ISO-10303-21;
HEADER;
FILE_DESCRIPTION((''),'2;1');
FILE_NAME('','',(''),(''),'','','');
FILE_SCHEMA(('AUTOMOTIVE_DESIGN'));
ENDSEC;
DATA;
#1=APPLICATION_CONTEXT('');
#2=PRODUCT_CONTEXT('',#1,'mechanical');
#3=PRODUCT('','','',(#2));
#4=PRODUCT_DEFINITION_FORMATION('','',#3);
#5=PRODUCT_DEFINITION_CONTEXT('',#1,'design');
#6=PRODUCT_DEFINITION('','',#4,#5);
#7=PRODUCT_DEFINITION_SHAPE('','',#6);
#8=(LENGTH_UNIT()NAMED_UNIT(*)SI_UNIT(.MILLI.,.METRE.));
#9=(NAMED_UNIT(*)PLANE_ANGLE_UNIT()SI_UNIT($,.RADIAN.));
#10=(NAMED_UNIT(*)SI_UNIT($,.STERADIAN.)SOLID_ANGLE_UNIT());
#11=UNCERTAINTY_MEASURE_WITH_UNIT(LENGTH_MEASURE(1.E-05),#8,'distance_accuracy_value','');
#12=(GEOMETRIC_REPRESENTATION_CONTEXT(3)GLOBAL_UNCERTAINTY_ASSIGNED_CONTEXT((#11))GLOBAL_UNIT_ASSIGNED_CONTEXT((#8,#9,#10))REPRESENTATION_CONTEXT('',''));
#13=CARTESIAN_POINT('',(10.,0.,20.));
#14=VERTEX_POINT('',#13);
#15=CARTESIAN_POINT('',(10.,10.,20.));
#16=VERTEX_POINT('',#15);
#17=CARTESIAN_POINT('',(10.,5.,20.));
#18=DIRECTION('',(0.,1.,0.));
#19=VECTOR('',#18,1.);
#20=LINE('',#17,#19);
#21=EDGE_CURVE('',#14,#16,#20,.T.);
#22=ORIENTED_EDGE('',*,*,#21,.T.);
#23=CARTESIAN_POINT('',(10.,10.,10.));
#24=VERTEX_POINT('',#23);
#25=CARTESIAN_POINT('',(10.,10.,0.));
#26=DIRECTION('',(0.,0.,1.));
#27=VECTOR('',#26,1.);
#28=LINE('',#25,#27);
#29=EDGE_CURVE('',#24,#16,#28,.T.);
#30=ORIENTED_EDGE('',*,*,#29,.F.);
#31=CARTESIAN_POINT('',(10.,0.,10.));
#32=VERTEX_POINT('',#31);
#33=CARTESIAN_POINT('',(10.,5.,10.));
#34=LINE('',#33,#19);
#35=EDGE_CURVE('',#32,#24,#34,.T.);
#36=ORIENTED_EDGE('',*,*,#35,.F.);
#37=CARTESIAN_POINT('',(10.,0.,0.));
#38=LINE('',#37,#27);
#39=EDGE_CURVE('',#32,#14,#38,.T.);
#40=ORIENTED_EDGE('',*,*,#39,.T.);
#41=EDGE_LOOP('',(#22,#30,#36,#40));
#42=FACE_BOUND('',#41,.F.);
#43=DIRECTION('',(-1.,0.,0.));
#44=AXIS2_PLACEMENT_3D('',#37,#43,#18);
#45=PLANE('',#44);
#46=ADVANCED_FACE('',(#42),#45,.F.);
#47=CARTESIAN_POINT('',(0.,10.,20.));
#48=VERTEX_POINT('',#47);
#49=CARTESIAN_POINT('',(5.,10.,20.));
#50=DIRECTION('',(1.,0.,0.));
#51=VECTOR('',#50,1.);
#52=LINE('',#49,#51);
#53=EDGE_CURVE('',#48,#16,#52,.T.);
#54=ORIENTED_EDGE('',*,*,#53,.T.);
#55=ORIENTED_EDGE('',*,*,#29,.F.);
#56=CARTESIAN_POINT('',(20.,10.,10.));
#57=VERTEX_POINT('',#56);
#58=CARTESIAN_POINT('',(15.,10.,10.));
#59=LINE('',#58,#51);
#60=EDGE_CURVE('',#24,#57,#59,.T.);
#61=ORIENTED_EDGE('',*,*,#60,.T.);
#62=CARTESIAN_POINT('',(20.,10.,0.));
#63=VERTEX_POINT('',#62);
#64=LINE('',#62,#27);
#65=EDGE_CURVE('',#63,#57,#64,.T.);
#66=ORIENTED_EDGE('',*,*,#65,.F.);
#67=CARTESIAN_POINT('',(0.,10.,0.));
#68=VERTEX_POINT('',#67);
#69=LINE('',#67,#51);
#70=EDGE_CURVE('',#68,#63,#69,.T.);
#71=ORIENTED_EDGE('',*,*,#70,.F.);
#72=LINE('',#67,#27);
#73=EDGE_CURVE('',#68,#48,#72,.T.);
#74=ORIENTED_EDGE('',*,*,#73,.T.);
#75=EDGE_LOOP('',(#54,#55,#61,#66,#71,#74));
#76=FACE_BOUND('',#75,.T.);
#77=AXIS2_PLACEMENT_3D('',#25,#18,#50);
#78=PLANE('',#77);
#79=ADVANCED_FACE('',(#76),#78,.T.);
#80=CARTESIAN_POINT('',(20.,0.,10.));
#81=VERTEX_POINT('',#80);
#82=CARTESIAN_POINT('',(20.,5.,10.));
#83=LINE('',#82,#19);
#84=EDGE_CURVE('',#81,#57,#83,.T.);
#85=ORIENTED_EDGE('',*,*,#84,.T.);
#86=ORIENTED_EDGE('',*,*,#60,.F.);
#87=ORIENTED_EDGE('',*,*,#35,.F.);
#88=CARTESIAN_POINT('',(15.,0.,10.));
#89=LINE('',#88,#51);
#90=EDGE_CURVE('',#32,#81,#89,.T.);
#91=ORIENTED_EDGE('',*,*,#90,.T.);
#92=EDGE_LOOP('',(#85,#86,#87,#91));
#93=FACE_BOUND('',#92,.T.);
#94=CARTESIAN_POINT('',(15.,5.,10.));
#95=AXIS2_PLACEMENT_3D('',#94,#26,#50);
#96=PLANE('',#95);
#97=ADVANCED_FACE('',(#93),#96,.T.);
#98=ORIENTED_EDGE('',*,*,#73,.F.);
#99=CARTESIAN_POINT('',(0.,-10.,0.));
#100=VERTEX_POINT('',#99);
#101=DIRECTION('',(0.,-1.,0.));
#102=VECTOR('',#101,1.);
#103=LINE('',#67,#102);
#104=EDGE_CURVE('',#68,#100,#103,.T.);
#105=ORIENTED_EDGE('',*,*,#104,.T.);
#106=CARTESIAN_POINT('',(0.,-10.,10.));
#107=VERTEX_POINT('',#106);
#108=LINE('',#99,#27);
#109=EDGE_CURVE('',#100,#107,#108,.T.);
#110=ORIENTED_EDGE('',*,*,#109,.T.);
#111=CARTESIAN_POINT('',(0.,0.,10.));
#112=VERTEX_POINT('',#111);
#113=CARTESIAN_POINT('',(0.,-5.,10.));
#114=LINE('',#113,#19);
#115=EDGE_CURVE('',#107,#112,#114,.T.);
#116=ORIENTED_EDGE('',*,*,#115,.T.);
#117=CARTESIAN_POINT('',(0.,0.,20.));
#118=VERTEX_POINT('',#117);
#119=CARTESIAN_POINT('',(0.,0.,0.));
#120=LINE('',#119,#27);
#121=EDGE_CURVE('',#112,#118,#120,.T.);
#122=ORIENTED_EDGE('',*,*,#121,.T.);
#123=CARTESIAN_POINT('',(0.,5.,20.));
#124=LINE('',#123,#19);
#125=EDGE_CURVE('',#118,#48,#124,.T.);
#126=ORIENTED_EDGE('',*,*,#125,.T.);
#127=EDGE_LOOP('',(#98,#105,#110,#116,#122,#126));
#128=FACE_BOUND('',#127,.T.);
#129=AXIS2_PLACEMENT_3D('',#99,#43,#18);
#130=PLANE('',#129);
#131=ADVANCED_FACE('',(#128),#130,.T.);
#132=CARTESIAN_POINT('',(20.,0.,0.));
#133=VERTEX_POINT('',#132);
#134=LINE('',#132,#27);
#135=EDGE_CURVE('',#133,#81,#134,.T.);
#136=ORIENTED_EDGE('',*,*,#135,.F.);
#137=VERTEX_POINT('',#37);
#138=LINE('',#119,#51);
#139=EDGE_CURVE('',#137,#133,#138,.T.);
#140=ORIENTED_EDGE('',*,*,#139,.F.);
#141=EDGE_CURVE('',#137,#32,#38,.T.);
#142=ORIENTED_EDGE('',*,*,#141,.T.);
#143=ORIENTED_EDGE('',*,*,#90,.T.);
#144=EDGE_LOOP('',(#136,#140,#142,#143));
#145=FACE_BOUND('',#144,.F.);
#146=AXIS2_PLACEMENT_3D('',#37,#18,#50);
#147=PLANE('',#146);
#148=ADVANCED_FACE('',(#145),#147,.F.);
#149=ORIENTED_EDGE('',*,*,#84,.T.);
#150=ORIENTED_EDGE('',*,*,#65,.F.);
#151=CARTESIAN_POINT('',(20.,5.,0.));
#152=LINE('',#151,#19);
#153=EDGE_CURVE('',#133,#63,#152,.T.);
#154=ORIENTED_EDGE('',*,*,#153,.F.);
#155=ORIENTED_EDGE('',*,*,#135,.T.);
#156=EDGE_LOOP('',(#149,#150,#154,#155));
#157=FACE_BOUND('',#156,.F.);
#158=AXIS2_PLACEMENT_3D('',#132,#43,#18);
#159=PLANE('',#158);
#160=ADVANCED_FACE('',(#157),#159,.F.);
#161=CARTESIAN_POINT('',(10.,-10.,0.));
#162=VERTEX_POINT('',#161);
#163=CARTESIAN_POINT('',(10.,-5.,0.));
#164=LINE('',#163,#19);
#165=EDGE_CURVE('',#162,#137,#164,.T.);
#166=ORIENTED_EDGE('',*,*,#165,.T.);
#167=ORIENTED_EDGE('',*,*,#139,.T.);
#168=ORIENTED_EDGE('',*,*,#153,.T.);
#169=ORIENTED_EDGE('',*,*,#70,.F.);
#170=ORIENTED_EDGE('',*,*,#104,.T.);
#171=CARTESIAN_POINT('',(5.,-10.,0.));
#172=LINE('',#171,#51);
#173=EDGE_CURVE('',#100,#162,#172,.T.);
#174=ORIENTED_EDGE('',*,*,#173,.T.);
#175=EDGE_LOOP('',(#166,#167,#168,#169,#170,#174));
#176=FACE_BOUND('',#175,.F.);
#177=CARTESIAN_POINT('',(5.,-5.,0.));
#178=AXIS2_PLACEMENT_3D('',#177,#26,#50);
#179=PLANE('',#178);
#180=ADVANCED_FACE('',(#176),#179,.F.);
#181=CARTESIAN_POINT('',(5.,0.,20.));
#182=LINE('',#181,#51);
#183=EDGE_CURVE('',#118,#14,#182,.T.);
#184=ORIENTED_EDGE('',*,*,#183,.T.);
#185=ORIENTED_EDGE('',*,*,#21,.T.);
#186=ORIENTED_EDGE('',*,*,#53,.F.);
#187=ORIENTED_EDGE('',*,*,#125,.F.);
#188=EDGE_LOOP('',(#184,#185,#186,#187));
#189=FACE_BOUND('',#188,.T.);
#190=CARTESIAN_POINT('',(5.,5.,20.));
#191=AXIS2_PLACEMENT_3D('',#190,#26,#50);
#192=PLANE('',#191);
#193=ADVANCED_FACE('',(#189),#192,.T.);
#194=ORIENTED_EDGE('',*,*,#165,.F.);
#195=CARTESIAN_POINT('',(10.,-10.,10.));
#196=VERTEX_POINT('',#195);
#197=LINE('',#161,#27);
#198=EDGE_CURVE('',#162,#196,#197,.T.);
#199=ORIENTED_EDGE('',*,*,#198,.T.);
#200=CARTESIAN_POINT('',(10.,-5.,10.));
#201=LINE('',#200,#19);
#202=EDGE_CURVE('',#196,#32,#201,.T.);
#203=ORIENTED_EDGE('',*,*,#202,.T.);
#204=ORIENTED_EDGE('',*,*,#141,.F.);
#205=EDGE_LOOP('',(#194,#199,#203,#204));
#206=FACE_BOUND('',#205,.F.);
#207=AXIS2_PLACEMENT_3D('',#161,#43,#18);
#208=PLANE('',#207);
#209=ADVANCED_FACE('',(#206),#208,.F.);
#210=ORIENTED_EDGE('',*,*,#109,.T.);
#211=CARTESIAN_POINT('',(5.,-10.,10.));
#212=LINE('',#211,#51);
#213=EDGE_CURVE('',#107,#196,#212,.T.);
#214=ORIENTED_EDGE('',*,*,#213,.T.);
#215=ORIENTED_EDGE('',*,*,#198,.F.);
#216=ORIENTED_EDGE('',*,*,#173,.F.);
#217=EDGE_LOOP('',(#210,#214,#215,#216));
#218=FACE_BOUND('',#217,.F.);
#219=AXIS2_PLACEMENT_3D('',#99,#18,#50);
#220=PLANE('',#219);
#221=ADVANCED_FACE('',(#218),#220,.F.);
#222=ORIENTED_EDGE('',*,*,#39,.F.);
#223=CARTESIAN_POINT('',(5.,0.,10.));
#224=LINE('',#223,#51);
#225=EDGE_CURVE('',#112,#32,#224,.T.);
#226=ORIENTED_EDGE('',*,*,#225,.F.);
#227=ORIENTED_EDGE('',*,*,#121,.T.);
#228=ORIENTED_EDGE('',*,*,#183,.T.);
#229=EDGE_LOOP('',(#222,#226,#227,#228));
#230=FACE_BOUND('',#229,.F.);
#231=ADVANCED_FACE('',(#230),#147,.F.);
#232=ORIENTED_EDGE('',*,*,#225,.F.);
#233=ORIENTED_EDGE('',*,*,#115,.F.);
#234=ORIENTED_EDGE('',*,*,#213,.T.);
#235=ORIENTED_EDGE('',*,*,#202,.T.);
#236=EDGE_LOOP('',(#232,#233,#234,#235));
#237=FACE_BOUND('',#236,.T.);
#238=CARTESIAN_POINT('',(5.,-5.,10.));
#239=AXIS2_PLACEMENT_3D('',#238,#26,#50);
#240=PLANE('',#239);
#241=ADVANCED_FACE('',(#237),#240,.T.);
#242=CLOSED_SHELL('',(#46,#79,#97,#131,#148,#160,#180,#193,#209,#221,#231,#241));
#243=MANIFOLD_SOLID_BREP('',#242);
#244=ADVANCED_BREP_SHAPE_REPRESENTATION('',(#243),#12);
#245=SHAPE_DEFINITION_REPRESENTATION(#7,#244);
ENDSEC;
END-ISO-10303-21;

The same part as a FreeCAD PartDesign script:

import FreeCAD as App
import Part
import Sketcher
Q = App.Units.Quantity


def add_polygon(sketch, points):
    """Adds a closed chain of lines whose ends are joined by coincident constraints."""
    first, n = sketch.GeometryCount, len(points)
    for a, b in zip(points, points[1:] + points[:1]):
        sketch.addGeometry(Part.LineSegment(App.Vector(*a, 0), App.Vector(*b, 0)), False)
    for i in range(n):
        sketch.addConstraint(Sketcher.Constraint("Coincident", first + i, 2, first + (i + 1) % n, 1))

doc = App.newDocument("Part")
body = doc.addObject("PartDesign::Body", "Body")

sketch1 = body.newObject("Sketcher::SketchObject", "Sketch")
sketch1.AttachmentSupport = (doc.getObject("XY_Plane"), [""])
sketch1.MapMode = "FlatFace"
add_polygon(sketch1, [(10, 10), (10, 0), (20, 0), (20, 10)])
sketch1.addConstraint([
    Sketcher.Constraint("Vertical", 0),
    Sketcher.Constraint("Horizontal", 1),
    Sketcher.Constraint("Vertical", 2),
    Sketcher.Constraint("Horizontal", 3),
    Sketcher.Constraint("PointOnObject", 0, 2, -1),
    Sketcher.Constraint("Equal", 3, 0),
    Sketcher.Constraint("DistanceX", 1, 1, 1, 2, Q("10 mm")),
    Sketcher.Constraint("DistanceX", -1, 1, 0, 2, Q("10 mm")),
])
pad1 = body.newObject("PartDesign::Pad", "Pad")
pad1.Profile = sketch1
pad1.Length = 10
body2 = doc.addObject("PartDesign::Body", "Body001")

sketch2 = body2.newObject("Sketcher::SketchObject", "Sketch001")
sketch2.AttachmentSupport = (doc.getObject("XY_Plane001"), [""])
sketch2.MapMode = "FlatFace"
add_polygon(sketch2, [(0, 0), (0, -10), (10, -10), (10, 0)])
sketch2.addConstraint([
    Sketcher.Constraint("Vertical", 0),
    Sketcher.Constraint("Horizontal", 1),
    Sketcher.Constraint("Vertical", 2),
    Sketcher.Constraint("Horizontal", 3),
    Sketcher.Constraint("Coincident", 3, 2, -1, 1),
    Sketcher.Constraint("Equal", 3, 0),
    Sketcher.Constraint("DistanceX", 1, 1, 1, 2, Q("10 mm")),
])
pad2 = body2.newObject("PartDesign::Pad", "Pad001")
pad2.Profile = sketch2
pad2.Length = 10
body3 = doc.addObject("PartDesign::Body", "Body002")

sketch3 = body3.newObject("Sketcher::SketchObject", "Sketch002")
sketch3.AttachmentSupport = (doc.getObject("XY_Plane002"), [""])
sketch3.MapMode = "FlatFace"
add_polygon(sketch3, [(0, 10), (0, 0), (10, 0), (10, 10)])
sketch3.addConstraint([
    Sketcher.Constraint("Vertical", 0),
    Sketcher.Constraint("Horizontal", 1),
    Sketcher.Constraint("Vertical", 2),
    Sketcher.Constraint("Horizontal", 3),
    Sketcher.Constraint("Coincident", 0, 2, -1, 1),
    Sketcher.Constraint("Equal", 3, 0),
    Sketcher.Constraint("DistanceX", 1, 1, 1, 2, Q("10 mm")),
])
pad3 = body3.newObject("PartDesign::Pad", "Pad002")
pad3.Profile = sketch3
pad3.Length = 20
doc.recompute()

boolean = body3.newObject("PartDesign::Boolean", "Boolean")
boolean.Type = "Fuse"
boolean.addObjects([body])
doc.recompute()

boolean2 = body3.newObject("PartDesign::Boolean", "Boolean001")
boolean2.Type = "Fuse"
boolean2.addObjects([body2])

doc.recompute()
